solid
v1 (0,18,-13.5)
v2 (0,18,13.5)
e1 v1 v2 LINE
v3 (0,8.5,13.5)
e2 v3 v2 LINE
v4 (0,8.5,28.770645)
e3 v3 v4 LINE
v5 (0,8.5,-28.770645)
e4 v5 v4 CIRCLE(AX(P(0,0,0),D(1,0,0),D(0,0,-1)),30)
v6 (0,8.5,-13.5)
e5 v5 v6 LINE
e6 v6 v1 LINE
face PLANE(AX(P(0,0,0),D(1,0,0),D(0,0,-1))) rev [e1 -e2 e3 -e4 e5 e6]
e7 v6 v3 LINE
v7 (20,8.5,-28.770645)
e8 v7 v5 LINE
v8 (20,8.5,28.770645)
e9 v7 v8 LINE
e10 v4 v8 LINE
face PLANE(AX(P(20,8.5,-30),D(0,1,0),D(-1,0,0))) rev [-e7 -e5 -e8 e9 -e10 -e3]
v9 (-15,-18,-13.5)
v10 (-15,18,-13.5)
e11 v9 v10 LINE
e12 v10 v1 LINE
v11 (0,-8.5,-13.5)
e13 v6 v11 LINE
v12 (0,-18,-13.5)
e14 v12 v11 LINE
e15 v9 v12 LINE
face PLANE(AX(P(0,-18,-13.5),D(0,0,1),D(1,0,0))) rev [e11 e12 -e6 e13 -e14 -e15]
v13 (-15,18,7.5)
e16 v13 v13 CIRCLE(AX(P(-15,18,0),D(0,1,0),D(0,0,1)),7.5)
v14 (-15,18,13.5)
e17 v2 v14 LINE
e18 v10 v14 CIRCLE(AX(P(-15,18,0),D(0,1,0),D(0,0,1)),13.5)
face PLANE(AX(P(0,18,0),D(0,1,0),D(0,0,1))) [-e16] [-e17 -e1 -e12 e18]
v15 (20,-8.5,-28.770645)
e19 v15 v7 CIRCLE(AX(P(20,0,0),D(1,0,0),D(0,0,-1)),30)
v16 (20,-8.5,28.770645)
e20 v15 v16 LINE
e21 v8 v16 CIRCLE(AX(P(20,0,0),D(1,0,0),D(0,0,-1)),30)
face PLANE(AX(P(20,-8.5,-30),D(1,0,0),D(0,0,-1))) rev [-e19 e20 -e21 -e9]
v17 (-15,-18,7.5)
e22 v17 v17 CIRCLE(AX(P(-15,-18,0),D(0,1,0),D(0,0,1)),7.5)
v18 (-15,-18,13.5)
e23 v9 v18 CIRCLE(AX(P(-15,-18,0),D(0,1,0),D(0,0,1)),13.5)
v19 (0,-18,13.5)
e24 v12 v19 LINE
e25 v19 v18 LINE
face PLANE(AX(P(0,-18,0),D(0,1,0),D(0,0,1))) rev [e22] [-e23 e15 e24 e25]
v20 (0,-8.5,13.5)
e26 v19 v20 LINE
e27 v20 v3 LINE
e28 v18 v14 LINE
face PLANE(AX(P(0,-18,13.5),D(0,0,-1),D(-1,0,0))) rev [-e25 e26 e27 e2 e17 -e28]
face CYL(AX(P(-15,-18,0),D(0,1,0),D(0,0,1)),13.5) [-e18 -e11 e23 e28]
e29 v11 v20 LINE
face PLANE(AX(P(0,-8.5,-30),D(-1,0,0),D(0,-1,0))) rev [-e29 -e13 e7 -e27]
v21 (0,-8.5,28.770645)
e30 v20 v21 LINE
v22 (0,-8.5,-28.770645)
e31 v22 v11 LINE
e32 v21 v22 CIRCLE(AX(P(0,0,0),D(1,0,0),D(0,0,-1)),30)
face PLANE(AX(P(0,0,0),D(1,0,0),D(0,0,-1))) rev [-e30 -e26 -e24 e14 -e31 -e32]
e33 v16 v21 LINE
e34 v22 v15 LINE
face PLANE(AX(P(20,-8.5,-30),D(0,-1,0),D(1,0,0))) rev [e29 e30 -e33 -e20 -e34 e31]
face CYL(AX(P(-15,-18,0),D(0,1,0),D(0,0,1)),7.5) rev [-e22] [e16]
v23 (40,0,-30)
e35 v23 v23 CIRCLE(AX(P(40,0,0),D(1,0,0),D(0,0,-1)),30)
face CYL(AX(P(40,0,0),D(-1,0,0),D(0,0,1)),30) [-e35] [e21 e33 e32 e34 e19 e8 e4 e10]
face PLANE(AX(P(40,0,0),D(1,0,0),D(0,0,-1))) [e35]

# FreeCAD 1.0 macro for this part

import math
import FreeCAD as App
import Part
import Sketcher

V = App.Vector
Q = App.Units.Quantity


def add_polygon(sketch, points):
    """Adds a closed chain of lines whose ends are joined by coincident constraints."""
    first, n = sketch.GeometryCount, len(points)
    for a, b in zip(points, points[1:] + points[:1]):
        sketch.addGeometry(Part.LineSegment(App.Vector(*a, 0), App.Vector(*b, 0)), False)
    for i in range(n):
        sketch.addConstraint(Sketcher.Constraint("Coincident", first + i, 2, first + (i + 1) % n, 1))

doc = App.newDocument("Part")
body = doc.addObject("PartDesign::Body", "Body")

# Sketch on YZ plane
sketch1 = doc.addObject("Sketcher::SketchObject", "Sketch")
body.addObject(sketch1)
sketch1.AttachmentSupport = (doc.YZ_Plane, [""])
sketch1.MapMode = "FlatFace"
sketch1.addGeometry(Part.Circle(V(0, 0, 0), V(0, 0, 1), 30), False)
sketch1.addConstraint([
    Sketcher.Constraint("Coincident", 0, 3, -1, 1),
    Sketcher.Constraint("Diameter", 0, Q("60 mm")),
])
pad1 = doc.addObject("PartDesign::Pad", "Pad")
body.addObject(pad1)
pad1.Profile = sketch1
pad1.Length = 40

# Sketch on XZ plane
sketch2 = doc.addObject("Sketcher::SketchObject", "Sketch001")
body.addObject(sketch2)
sketch2.AttachmentSupport = (doc.XZ_Plane, [""])
sketch2.MapMode = "FlatFace"
sketch2.addGeometry([
    Part.LineSegment(V(0, -14, 0), V(-15, -14, 0)),  # 0
    Part.ArcOfCircle(Part.Circle(V(-15, 0, 0), V(0, 0, 1), 14), math.radians(90), math.radians(270)),  # 1
    Part.LineSegment(V(-15, 14, 0), V(0, 14, 0)),  # 2
    Part.LineSegment(V(0, 14, 0), V(0, -14, 0)),  # 3
    Part.Circle(V(-15, 0, 0), V(0, 0, 1), 8),  # 4
], False)
sketch2.addConstraint([
    Sketcher.Constraint("Tangent", 0, 2, 1, 2),
    Sketcher.Constraint("Tangent", 1, 1, 2, 1),
    Sketcher.Constraint("Coincident", 2, 2, 3, 1),
    Sketcher.Constraint("Coincident", 3, 2, 0, 1),
    Sketcher.Constraint("Horizontal", 0),
    Sketcher.Constraint("Horizontal", 2),
    Sketcher.Constraint("Vertical", 3),
    Sketcher.Constraint("Coincident", 4, 3, 1, 3),
    Sketcher.Constraint("Symmetric", 2, 2, 3, 2, -1, 1),
    Sketcher.Constraint("Diameter", 4, Q("15 mm")),
    Sketcher.Constraint("Radius", 1, Q("13.5 mm")),
    Sketcher.Constraint("DistanceX", 0, 2, 0, 1, Q("15 mm")),
])
pad2 = doc.addObject("PartDesign::Pad", "Pad001")
body.addObject(pad2)
pad2.Profile = sketch2
pad2.Type = "TwoLengths"
pad2.Length = 18
pad2.Length2 = 18
pad2.Reversed = True

# Sketch on XY plane
sketch3 = doc.addObject("Sketcher::SketchObject", "Sketch002")
body.addObject(sketch3)
sketch3.AttachmentSupport = (doc.XY_Plane, [""])
sketch3.MapMode = "FlatFace"
add_polygon(sketch3, [(0, 8), (0, -8), (20, -8), (20, 8)])  # lines 0-3
sketch3.addConstraint([
    Sketcher.Constraint("Vertical", 0),
    Sketcher.Constraint("Horizontal", 1),
    Sketcher.Constraint("Vertical", 2),
    Sketcher.Constraint("Horizontal", 3),
    Sketcher.Constraint("Symmetric", 0, 2, 3, 2, -1, 1),
    Sketcher.Constraint("DistanceX", 1, 1, 1, 2, Q("20 mm")),
    Sketcher.Constraint("DistanceY", 0, 2, 0, 1, Q("17 mm")),
])
pocket1 = doc.addObject("PartDesign::Pocket", "Pocket")
body.addObject(pocket1)
pocket1.Profile = sketch3
pocket1.Type = "ThroughAll"
pocket1.Midplane = True

doc.recompute()
